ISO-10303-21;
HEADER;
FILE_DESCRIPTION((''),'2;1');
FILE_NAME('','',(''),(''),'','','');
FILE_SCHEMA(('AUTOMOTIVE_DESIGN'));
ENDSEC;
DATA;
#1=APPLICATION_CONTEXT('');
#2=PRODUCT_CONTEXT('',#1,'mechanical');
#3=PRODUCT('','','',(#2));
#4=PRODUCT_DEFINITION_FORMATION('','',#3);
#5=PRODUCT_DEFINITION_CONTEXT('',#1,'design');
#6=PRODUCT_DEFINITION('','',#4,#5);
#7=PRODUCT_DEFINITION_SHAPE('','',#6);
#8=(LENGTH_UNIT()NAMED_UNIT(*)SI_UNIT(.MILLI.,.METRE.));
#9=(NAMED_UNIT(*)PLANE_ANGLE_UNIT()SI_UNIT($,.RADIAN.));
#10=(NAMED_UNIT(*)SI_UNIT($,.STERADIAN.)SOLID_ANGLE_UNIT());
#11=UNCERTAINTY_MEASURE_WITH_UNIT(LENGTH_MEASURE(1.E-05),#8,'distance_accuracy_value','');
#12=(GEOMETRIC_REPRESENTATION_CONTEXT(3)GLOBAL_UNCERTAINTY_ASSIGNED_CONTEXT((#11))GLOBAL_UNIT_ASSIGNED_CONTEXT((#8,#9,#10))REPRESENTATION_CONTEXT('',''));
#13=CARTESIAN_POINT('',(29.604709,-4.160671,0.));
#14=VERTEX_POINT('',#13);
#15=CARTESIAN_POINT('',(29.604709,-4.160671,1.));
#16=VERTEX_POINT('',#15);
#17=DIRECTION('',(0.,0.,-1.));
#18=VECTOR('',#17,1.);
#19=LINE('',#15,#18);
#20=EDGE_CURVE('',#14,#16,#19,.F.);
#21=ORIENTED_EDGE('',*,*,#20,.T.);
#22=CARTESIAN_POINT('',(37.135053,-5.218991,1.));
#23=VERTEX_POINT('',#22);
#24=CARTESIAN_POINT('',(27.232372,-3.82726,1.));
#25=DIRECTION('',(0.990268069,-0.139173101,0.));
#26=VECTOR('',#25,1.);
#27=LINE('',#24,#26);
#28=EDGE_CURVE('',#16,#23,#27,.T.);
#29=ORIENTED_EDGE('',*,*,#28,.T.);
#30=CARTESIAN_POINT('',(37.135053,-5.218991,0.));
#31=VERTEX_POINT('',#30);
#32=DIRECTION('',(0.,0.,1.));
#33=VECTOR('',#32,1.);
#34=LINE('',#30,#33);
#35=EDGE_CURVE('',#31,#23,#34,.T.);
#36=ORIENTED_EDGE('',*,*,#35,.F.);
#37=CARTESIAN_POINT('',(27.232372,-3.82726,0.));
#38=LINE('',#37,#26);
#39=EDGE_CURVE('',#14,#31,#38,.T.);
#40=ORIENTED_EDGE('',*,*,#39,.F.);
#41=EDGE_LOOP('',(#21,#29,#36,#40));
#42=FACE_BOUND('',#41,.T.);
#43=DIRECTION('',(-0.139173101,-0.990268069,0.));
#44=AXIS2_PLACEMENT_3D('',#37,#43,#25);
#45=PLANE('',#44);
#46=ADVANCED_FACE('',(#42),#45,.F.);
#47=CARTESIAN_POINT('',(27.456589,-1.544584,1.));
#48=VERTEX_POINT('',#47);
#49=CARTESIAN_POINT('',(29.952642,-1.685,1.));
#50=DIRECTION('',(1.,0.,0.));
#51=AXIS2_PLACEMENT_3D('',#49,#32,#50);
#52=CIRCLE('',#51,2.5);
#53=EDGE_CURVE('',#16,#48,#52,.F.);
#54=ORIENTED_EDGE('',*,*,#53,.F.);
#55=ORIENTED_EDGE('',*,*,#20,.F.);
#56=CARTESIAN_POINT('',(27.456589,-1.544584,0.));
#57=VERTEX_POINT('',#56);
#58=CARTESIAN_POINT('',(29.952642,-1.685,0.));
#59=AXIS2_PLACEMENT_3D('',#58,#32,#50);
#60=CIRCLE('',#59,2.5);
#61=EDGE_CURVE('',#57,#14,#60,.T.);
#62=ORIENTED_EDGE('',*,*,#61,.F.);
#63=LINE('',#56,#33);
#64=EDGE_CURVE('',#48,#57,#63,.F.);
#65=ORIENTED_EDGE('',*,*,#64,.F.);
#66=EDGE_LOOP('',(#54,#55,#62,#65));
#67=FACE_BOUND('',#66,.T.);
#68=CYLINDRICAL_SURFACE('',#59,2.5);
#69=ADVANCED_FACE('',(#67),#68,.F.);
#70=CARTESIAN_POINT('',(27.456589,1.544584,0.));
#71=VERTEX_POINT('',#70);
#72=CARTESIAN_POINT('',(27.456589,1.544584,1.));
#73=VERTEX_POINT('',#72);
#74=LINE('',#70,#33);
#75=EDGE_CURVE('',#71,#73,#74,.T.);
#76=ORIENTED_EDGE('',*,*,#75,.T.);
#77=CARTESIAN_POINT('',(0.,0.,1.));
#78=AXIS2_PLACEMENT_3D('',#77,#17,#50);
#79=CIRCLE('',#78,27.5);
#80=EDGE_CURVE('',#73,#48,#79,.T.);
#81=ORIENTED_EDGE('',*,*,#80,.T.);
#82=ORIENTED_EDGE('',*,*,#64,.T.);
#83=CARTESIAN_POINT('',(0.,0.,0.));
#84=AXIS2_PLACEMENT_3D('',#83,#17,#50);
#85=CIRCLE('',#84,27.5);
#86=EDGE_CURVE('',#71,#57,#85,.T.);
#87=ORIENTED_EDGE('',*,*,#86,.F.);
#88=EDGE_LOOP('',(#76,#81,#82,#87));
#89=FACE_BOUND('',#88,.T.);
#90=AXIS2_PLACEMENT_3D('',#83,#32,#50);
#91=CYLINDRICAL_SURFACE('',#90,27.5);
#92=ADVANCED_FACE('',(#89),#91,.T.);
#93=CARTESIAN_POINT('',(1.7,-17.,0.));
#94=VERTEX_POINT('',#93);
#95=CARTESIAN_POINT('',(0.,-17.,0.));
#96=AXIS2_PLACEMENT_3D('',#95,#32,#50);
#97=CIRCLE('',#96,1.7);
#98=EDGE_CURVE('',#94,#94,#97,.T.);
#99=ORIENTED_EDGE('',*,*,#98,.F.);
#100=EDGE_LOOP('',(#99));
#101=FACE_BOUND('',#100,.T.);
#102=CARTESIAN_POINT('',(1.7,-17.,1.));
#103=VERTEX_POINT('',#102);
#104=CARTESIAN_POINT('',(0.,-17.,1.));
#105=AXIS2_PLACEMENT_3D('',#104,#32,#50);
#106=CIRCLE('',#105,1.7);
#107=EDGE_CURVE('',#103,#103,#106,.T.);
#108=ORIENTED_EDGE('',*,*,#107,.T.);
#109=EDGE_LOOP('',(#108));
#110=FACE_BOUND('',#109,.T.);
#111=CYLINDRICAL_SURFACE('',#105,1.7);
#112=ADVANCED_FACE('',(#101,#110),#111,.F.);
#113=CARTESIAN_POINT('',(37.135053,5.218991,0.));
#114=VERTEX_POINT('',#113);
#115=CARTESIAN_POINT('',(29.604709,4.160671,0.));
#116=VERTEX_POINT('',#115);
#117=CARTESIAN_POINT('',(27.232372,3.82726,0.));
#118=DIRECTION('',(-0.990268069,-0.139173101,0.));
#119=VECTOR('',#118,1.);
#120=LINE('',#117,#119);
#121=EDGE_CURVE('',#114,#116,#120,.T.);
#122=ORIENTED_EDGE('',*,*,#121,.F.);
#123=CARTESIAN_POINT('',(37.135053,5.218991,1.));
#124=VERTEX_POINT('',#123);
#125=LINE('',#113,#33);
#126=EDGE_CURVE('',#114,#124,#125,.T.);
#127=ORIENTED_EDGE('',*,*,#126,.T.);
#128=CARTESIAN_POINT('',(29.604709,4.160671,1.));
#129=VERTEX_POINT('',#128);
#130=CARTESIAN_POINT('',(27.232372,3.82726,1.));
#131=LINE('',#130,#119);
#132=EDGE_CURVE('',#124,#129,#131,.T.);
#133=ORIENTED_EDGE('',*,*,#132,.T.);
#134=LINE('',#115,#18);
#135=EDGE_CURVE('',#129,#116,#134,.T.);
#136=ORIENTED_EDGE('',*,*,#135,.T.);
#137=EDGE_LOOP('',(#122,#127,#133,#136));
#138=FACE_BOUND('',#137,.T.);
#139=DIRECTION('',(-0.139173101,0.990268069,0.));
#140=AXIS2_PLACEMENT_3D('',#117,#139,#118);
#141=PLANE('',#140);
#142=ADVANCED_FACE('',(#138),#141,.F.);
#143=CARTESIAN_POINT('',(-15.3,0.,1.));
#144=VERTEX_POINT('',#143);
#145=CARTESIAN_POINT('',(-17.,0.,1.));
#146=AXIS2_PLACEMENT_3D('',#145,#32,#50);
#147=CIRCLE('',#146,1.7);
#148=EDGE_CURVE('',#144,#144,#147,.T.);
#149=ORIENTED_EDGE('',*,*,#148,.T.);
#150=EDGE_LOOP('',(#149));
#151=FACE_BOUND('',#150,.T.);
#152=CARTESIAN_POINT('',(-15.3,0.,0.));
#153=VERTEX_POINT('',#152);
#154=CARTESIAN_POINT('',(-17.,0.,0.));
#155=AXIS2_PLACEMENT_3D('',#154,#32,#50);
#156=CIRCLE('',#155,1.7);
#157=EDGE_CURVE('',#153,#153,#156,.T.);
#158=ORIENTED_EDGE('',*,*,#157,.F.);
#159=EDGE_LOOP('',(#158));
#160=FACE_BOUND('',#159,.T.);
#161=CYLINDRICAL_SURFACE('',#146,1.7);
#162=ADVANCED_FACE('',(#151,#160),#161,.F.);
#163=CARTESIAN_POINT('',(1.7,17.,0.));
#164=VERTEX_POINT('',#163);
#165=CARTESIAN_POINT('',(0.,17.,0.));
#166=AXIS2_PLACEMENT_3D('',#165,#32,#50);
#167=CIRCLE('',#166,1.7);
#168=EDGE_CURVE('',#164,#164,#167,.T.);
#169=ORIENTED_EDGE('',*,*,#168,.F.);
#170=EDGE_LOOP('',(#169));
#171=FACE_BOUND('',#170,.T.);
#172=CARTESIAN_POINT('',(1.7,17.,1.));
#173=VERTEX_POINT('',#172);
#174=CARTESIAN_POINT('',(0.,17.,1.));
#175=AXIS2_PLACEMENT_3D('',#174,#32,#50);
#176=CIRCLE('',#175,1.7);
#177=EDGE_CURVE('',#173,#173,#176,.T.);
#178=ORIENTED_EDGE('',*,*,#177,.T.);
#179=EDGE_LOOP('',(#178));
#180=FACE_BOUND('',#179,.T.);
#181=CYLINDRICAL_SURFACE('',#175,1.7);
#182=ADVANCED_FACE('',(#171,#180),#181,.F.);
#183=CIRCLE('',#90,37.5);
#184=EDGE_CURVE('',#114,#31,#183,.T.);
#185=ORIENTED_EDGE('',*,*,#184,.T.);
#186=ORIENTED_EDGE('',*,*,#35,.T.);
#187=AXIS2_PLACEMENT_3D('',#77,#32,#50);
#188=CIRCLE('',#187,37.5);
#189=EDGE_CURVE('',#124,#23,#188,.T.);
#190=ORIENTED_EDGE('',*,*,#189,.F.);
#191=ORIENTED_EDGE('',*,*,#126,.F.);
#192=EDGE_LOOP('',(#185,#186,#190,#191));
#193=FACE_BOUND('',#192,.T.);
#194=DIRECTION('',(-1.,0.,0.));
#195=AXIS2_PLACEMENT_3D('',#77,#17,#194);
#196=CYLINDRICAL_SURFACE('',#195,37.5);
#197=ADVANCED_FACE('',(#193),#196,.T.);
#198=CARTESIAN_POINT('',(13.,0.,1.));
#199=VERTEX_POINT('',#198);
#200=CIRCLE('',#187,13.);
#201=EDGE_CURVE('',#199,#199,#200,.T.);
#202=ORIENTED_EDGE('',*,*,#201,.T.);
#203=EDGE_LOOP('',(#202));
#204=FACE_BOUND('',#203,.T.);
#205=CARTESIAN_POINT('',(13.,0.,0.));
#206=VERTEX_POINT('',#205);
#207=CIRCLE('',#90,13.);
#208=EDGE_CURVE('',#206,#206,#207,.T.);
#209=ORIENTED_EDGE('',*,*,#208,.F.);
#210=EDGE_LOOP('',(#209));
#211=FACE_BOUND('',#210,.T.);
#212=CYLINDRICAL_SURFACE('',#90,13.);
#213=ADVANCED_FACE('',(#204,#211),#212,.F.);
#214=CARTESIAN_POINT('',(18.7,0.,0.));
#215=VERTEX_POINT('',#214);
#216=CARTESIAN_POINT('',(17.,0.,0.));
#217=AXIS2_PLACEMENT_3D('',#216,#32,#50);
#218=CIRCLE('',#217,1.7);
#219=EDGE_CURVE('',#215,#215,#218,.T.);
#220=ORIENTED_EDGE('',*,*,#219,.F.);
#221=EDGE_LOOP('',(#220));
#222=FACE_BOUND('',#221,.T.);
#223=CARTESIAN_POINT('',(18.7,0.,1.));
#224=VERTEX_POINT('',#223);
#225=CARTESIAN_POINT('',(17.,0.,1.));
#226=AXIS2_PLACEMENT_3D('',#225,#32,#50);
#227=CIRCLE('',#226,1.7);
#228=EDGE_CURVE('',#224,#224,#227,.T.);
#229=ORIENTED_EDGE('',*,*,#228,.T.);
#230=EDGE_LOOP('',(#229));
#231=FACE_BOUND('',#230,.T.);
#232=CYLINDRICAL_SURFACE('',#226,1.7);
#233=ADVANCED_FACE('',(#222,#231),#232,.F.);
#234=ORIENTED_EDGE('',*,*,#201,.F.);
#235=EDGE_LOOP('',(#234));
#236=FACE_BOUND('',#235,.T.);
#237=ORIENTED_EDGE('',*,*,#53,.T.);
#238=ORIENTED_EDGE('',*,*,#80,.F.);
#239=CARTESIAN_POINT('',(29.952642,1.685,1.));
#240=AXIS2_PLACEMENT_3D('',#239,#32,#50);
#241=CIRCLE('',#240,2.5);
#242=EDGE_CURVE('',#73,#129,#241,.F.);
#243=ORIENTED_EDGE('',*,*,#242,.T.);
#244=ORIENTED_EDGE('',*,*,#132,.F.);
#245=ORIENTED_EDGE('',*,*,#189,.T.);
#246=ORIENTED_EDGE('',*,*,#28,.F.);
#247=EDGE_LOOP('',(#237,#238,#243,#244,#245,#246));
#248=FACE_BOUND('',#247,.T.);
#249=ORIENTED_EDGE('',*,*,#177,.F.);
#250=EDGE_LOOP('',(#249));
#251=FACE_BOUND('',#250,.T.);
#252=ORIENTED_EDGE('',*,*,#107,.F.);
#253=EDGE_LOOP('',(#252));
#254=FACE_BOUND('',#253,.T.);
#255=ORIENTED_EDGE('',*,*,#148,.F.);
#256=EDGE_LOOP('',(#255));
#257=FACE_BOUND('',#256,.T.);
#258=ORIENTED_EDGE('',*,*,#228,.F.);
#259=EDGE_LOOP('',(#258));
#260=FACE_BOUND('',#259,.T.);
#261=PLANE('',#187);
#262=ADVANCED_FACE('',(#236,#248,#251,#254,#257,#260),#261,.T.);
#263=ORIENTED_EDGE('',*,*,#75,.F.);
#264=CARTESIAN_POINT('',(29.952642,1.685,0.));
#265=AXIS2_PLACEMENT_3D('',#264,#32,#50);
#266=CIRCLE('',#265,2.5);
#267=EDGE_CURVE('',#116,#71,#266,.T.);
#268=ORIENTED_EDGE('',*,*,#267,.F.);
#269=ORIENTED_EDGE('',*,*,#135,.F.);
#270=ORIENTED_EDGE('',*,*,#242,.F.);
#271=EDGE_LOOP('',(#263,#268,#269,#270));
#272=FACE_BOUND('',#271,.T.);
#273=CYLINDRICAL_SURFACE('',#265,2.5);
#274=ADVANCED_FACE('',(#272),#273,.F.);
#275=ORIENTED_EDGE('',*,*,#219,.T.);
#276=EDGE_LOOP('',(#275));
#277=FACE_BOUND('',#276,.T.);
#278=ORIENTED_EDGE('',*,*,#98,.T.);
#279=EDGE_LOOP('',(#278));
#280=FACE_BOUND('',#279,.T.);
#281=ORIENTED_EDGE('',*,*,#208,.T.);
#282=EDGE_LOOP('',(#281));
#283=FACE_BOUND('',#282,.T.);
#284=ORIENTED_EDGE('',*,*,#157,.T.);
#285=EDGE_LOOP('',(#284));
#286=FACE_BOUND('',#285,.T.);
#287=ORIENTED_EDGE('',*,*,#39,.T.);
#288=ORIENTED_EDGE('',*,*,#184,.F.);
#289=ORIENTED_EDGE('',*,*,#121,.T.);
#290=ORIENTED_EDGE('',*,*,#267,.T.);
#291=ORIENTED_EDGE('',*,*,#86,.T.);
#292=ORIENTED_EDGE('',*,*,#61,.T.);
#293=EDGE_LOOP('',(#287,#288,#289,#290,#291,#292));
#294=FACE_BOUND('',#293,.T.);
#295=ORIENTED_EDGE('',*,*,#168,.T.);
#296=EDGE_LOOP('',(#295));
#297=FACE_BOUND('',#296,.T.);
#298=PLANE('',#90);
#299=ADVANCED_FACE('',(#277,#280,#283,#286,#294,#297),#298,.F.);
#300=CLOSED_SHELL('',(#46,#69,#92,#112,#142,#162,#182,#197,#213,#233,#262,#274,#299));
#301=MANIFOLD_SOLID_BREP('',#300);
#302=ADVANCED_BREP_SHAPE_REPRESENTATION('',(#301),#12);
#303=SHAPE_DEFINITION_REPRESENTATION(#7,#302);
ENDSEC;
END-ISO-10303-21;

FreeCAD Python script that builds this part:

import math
import FreeCAD as App
import Part
import Sketcher
from FreeCAD import Vector
Q = App.Units.Quantity


def edges_at(feature, points):
    """Names of the edges that pass closest to the given points."""
    edges = feature.Shape.Edges
    near = lambda p: min(range(len(edges)), key=lambda i: edges[i].distToShape(Part.Vertex(*p))[0])
    return sorted({f"Edge{near(p) + 1}" for p in points})

doc = App.newDocument("Part")
body = doc.addObject("PartDesign::Body", "Body")

# Sketch on XY plane
sketch1 = doc.addObject("Sketcher::SketchObject", "Sketch")
body.addObject(sketch1)
sketch1.AttachmentSupport = (doc.XY_Plane, [""])
sketch1.MapMode = "FlatFace"
sketch1.addGeometry(Part.Circle(Vector(0, 0, 0), Vector(0, 0, 1), 37.5), False)
sketch1.addConstraint(Sketcher.Constraint("Coincident", 0, 3, -1, 1))
sketch1.addConstraint(Sketcher.Constraint("Diameter", 0, Q("75 mm")))
pad1 = doc.addObject("PartDesign::Pad", "Pad")
body.addObject(pad1)
pad1.Profile = sketch1
pad1.Length = 1

# Sketch on XY plane
sketch2 = doc.addObject("Sketcher::SketchObject", "Sketch001")
body.addObject(sketch2)
sketch2.AttachmentSupport = (doc.XY_Plane, [""])
sketch2.MapMode = "FlatFace"
sketch2.AttachmentOffset = App.Placement(Vector(0, 0, 1), App.Rotation())
sketch2.addGeometry(Part.Circle(Vector(0, 0, 0), Vector(0, 0, 1), 13), False)
sketch2.addConstraint(Sketcher.Constraint("Coincident", 0, 3, -1, 1))
sketch2.addConstraint(Sketcher.Constraint("Diameter", 0, Q("26 mm")))
pocket1 = doc.addObject("PartDesign::Pocket", "Pocket")
body.addObject(pocket1)
pocket1.Profile = sketch2
pocket1.Type = "ThroughAll"

# Sketch on XY plane
sketch3 = doc.addObject("Sketcher::SketchObject", "Sketch002")
body.addObject(sketch3)
sketch3.AttachmentSupport = (doc.XY_Plane, [""])
sketch3.MapMode = "FlatFace"
sketch3.AttachmentOffset = App.Placement(Vector(0, 0, 1), App.Rotation())
sketch3.addGeometry(Part.Circle(Vector(0, 17, 0), Vector(0, 0, 1), 1.7), False)
sketch3.addGeometry(Part.Circle(Vector(17, 0, 0), Vector(0, 0, 1), 1.7), False)
sketch3.addGeometry(Part.Circle(Vector(0, -17, 0), Vector(0, 0, 1), 1.7), False)
sketch3.addGeometry(Part.Circle(Vector(-17, 0, 0), Vector(0, 0, 1), 1.7), False)
sketch3.addConstraint(Sketcher.Constraint("Equal", 0, 1))
sketch3.addConstraint(Sketcher.Constraint("Equal", 1, 2))
sketch3.addConstraint(Sketcher.Constraint("Equal", 2, 3))
sketch3.addConstraint(Sketcher.Constraint("Symmetric", 0, 3, 2, 3, -1, 1))
sketch3.addConstraint(Sketcher.Constraint("Symmetric", 1, 3, 3, 3, -1, 1))
sketch3.addConstraint(Sketcher.Constraint("PointOnObject", 0, 3, -2))
sketch3.addConstraint(Sketcher.Constraint("PointOnObject", 1, 3, -1))
sketch3.addConstraint(Sketcher.Constraint("Diameter", 0, Q("3.4 mm")))
sketch3.addConstraint(Sketcher.Constraint("DistanceY", -1, 1, 0, 3, Q("17 mm")))
sketch3.addConstraint(Sketcher.Constraint("DistanceX", -1, 1, 1, 3, Q("17 mm")))
doc.recompute()
hole = doc.addObject("PartDesign::Hole", "Hole")
body.addObject(hole)
hole.Profile = sketch3
hole.ThreadType = "None"
hole.Diameter = 3.4
hole.DepthType = "ThroughAll"

# Sketch on XY plane
sketch4 = doc.addObject("Sketcher::SketchObject", "Sketch003")
body.addObject(sketch4)
sketch4.AttachmentSupport = (doc.XY_Plane, [""])
sketch4.MapMode = "FlatFace"
sketch4.AttachmentOffset = App.Placement(Vector(0, 0, 1), App.Rotation())
sketch4.addGeometry(Part.LineSegment(Vector(37.135053, 5.218991, 0), Vector(27.232372, 3.82726, 0)), False)
sketch4.addGeometry(Part.ArcOfCircle(Part.Circle(Vector(0, 0, 0), Vector(0, 0, 1), 27.5), math.radians(-8), math.radians(8)), False)
sketch4.addGeometry(Part.LineSegment(Vector(27.232372, -3.82726, 0), Vector(37.135053, -5.218991, 0)), False)
sketch4.addGeometry(Part.ArcOfCircle(Part.Circle(Vector(0, 0, 0), Vector(0, 0, 1), 37.5), math.radians(-8), math.radians(8)), False)
sketch4.addConstraint(Sketcher.Constraint("Coincident", 0, 2, 1, 2))
sketch4.addConstraint(Sketcher.Constraint("Coincident", 1, 1, 2, 1))
sketch4.addConstraint(Sketcher.Constraint("Coincident", 2, 2, 3, 1))
sketch4.addConstraint(Sketcher.Constraint("Coincident", 3, 2, 0, 1))
sketch4.addConstraint(Sketcher.Constraint("Coincident", 1, 3, -1, 1))
sketch4.addConstraint(Sketcher.Constraint("Coincident", 3, 3, -1, 1))
sketch4.addConstraint(Sketcher.Constraint("Vertical", 0, 2, 1, 1))
sketch4.addConstraint(Sketcher.Constraint("Vertical", 2, 2, 3, 2))
sketch4.addConstraint(Sketcher.Constraint("Radius", 1, Q("27.5 mm")))
sketch4.addConstraint(Sketcher.Constraint("Radius", 3, Q("37.5 mm")))
sketch4.addConstraint(Sketcher.Constraint("Angle", 0, Q("-172 deg")))
sketch4.addConstraint(Sketcher.Constraint("DistanceX", -1, 1, 0, 2, Q("27.232372 mm")))
pocket2 = doc.addObject("PartDesign::Pocket", "Pocket001")
body.addObject(pocket2)
pocket2.Profile = sketch4
pocket2.Type = "ThroughAll"
doc.recompute()

fillet = doc.addObject("PartDesign::Fillet", "Fillet")
body.addObject(fillet)
fillet.Base = (pocket2, edges_at(pocket2, [(27.232, -3.827, 0.5), (27.232, 3.827, 0.5)]))
fillet.Radius = 2.5

doc.recompute()
